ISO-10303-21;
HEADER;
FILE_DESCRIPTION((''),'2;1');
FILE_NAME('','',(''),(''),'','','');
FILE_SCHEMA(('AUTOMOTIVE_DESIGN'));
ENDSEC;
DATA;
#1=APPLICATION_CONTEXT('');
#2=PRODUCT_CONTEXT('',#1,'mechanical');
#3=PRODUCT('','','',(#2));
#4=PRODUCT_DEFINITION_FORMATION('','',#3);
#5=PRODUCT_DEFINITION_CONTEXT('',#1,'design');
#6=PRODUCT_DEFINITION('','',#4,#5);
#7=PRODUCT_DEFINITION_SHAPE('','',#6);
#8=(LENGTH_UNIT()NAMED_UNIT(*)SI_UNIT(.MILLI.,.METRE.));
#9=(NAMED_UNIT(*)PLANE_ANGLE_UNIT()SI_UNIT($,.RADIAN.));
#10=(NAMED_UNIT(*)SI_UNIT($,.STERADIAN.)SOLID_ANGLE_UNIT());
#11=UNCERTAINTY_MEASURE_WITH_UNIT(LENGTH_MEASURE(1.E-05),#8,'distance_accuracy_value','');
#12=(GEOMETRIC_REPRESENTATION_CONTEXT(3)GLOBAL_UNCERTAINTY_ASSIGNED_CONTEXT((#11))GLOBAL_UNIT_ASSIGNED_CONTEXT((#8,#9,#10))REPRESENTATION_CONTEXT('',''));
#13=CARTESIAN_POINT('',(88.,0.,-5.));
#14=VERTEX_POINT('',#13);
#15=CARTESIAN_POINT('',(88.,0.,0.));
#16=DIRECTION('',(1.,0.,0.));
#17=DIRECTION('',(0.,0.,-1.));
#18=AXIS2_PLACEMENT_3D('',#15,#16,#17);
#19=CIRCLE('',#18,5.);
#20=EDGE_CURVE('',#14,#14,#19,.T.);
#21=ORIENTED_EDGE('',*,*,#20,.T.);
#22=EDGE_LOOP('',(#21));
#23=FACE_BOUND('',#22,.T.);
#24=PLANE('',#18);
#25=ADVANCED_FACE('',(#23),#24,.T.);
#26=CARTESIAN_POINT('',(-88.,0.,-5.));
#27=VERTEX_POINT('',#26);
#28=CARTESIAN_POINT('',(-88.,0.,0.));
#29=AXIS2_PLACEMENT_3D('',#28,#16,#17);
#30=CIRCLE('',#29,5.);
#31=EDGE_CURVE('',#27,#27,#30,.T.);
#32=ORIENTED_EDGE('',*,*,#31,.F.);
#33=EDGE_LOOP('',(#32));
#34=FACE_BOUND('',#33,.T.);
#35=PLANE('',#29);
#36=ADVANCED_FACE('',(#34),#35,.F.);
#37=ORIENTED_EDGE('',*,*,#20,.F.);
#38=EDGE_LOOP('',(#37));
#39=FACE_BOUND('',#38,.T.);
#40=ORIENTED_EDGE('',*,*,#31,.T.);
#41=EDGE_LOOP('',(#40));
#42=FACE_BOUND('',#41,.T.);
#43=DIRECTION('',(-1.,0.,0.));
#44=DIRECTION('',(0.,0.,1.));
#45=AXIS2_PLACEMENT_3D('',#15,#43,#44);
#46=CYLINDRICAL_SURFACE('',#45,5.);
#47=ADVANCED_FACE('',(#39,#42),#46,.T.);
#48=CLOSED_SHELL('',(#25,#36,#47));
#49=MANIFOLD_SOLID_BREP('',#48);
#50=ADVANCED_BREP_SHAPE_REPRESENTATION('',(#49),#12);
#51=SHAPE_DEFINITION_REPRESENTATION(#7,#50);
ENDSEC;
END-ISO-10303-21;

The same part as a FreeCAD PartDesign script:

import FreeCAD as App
import Part
import Sketcher

doc = App.newDocument("Part")
body = doc.addObject("PartDesign::Body", "Body")

# Sketch on YZ plane
sketch1 = doc.addObject("Sketcher::SketchObject", "Sketch")
body.addObject(sketch1)
sketch1.AttachmentSupport = (doc.YZ_Plane, [""])
sketch1.MapMode = "FlatFace"
sketch1.addGeometry(Part.Circle(App.Vector(0, 0, 0), App.Vector(0, 0, 1), 5), False)
sketch1.addConstraint(Sketcher.Constraint("Coincident", 0, 3, -1, 1))
sketch1.addConstraint(Sketcher.Constraint("Diameter", 0, 10.0))
pad1 = doc.addObject("PartDesign::Pad", "Pad")
body.addObject(pad1)
pad1.Profile = sketch1
pad1.Length = 176
pad1.Midplane = True

doc.recompute()
